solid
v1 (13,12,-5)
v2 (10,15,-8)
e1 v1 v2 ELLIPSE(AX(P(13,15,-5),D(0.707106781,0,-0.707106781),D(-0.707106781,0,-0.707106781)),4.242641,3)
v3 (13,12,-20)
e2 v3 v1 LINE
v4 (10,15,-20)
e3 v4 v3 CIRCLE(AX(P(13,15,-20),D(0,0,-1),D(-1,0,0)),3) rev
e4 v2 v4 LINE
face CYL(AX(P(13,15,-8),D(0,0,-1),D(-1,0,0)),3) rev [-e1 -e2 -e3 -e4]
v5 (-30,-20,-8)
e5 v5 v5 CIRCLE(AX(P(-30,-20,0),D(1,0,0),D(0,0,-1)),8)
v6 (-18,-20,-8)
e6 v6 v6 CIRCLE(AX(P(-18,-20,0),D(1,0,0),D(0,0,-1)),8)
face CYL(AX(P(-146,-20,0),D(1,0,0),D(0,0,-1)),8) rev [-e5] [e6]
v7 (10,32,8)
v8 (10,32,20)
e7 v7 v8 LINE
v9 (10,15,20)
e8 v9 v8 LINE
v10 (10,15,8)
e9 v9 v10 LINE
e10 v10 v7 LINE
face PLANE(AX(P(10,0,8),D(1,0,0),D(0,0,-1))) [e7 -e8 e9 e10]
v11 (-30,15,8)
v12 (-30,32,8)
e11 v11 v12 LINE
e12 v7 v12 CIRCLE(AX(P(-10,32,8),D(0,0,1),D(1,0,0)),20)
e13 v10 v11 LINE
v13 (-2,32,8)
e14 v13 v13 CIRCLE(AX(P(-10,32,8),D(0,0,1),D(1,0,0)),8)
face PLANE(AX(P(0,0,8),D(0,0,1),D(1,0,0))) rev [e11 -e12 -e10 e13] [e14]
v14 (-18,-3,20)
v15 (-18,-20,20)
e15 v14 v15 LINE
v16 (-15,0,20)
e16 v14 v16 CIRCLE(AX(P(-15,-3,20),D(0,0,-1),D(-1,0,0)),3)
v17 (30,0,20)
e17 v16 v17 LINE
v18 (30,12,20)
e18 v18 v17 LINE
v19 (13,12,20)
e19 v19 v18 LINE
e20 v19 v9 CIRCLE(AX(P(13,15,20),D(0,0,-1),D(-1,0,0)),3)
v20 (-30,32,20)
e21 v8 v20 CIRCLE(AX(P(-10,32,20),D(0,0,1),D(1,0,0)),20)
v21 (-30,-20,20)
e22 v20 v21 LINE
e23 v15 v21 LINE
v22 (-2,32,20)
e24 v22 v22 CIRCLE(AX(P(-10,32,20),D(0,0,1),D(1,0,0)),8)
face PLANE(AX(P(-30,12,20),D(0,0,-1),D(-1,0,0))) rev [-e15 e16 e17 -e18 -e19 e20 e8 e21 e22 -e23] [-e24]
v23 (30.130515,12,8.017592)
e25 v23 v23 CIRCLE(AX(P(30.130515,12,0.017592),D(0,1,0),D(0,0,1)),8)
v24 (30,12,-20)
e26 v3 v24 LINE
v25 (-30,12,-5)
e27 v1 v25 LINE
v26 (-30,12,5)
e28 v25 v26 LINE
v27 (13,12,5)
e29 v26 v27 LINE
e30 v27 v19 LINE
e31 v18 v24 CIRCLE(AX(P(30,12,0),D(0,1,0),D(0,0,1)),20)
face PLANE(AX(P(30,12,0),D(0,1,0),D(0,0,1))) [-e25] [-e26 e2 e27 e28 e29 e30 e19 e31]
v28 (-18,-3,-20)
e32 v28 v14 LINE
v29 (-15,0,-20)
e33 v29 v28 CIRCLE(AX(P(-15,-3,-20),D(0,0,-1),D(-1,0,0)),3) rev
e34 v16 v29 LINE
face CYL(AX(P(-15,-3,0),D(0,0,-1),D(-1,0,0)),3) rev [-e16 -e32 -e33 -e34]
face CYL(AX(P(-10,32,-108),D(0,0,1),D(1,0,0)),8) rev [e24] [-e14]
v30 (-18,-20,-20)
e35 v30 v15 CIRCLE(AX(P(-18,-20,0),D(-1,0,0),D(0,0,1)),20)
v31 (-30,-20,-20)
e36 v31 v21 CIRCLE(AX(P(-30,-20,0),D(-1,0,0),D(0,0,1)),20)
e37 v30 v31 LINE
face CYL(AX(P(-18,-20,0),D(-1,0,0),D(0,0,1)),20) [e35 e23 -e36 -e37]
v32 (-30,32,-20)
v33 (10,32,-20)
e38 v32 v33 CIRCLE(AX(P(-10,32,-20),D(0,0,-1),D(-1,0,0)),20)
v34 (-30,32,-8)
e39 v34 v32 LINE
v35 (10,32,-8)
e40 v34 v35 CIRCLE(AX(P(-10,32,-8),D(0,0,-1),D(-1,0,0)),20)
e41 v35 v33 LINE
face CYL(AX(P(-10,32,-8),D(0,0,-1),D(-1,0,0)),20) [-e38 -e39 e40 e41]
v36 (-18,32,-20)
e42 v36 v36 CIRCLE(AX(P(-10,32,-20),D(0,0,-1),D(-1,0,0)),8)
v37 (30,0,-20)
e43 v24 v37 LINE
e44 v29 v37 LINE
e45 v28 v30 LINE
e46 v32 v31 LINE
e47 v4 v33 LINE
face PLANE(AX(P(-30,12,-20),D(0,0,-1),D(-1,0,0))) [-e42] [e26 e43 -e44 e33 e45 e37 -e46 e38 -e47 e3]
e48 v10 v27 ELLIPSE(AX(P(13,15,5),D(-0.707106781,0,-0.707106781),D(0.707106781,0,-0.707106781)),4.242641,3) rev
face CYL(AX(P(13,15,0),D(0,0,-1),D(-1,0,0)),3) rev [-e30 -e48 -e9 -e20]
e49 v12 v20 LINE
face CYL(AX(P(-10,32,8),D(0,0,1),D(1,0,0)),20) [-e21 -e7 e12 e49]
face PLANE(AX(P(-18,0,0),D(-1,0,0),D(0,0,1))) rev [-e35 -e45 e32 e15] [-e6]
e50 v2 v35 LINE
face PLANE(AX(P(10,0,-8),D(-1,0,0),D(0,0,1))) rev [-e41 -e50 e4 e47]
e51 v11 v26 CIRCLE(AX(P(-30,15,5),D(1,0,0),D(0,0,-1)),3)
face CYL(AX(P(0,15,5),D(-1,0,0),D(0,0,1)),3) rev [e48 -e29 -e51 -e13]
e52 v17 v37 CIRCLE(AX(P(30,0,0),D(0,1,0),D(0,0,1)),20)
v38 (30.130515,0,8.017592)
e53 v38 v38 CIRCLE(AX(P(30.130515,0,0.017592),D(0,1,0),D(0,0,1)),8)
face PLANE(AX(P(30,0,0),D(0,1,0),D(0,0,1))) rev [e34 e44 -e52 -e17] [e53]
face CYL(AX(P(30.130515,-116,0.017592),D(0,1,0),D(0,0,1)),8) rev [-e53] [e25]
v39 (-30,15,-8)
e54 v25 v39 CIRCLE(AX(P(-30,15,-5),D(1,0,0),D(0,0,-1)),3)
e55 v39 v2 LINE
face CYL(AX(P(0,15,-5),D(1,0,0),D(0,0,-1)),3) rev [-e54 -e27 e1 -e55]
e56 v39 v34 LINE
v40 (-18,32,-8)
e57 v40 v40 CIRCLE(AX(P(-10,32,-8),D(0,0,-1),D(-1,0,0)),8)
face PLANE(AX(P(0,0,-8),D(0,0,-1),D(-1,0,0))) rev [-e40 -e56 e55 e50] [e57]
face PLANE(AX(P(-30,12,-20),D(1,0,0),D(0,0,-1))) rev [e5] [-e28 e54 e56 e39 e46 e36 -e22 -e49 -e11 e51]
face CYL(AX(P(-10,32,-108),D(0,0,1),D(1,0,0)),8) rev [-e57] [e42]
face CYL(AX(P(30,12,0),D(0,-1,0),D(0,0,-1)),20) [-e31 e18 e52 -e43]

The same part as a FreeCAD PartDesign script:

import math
import FreeCAD as App
import Part
import Sketcher

V = App.Vector
Q = App.Units.Quantity


def edges_at(feature, points):
    """Names of the edges that pass closest to the given points."""
    edges = feature.Shape.Edges
    near = lambda p: min(range(len(edges)), key=lambda i: edges[i].distToShape(Part.Vertex(*p))[0])
    return sorted({f"Edge{near(p) + 1}" for p in points})

doc = App.newDocument("Part")
body = doc.addObject("PartDesign::Body", "Body")

# Sketch on XZ plane
sketch1 = body.newObject("Sketcher::SketchObject", "Sketch")
sketch1.AttachmentSupport = (doc.getObject("XZ_Plane"), [""])
sketch1.MapMode = "FlatFace"
sketch1.addGeometry([
    Part.LineSegment(V(30, -20, 0), V(-30, -20, 0)),
    Part.LineSegment(V(-30, -20, 0), V(-30, 20, 0)),
    Part.LineSegment(V(-30, 20, 0), V(30, 20, 0)),
    Part.ArcOfCircle(Part.Circle(V(30, 0, 0), V(0, 0, 1), 20), math.radians(-90), math.radians(90)),
], False)
sketch1.addConstraint([
    Sketcher.Constraint("Coincident", 0, 2, 1, 1),
    Sketcher.Constraint("Coincident", 1, 2, 2, 1),
    Sketcher.Constraint("Tangent", 2, 2, 3, 2),
    Sketcher.Constraint("Tangent", 3, 1, 0, 1),
    Sketcher.Constraint("Horizontal", 0),
    Sketcher.Constraint("Vertical", 1),
    Sketcher.Constraint("Horizontal", 2),
    Sketcher.Constraint("Symmetric", 0, 2, 2, 2, -1, 1),
    Sketcher.Constraint("Radius", 3, Q("20 mm")),
    Sketcher.Constraint("DistanceX", 0, 2, 0, 1, Q("60 mm")),
])
pad1 = body.newObject("PartDesign::Pad", "Pad")
pad1.Profile = sketch1
pad1.Length = 12
pad1.Reversed = True

# Sketch on XY plane
sketch2 = body.newObject("Sketcher::SketchObject", "Sketch001")
sketch2.AttachmentSupport = (doc.getObject("XY_Plane"), [""])
sketch2.MapMode = "FlatFace"
sketch2.AttachmentOffset = App.Placement(V(0, 0, 20), App.Rotation())
sketch2.addGeometry([
    Part.ArcOfCircle(Part.Circle(V(-10, 32, 0), V(0, 0, 1), 20), math.radians(0), math.radians(180)),
    Part.LineSegment(V(-30, 32, 0), V(-30, 12, 0)),
    Part.LineSegment(V(-30, 12, 0), V(10, 12, 0)),
    Part.LineSegment(V(10, 12, 0), V(10, 32, 0)),
], False)
sketch2.addConstraint([
    Sketcher.Constraint("Tangent", 0, 2, 1, 1),
    Sketcher.Constraint("Coincident", 1, 2, 2, 1),
    Sketcher.Constraint("Coincident", 2, 2, 3, 1),
    Sketcher.Constraint("Tangent", 3, 2, 0, 1),
    Sketcher.Constraint("Vertical", 1),
    Sketcher.Constraint("Horizontal", 2),
    Sketcher.Constraint("Vertical", 3),
    Sketcher.Constraint("Radius", 0, Q("20 mm")),
    Sketcher.Constraint("DistanceY", 1, 2, 1, 1, Q("20 mm")),
    Sketcher.Constraint("DistanceX", 0, 3, -1, 1, Q("10 mm")),
    Sketcher.Constraint("DistanceY", -1, 1, 0, 3, Q("32 mm")),
])
pad2 = body.newObject("PartDesign::Pad", "Pad001")
pad2.Profile = sketch2
pad2.Length = 12
pad2.Reversed = True

# Sketch on XY plane
sketch3 = body.newObject("Sketcher::SketchObject", "Sketch002")
sketch3.AttachmentSupport = (doc.getObject("XY_Plane"), [""])
sketch3.MapMode = "FlatFace"
sketch3.AttachmentOffset = App.Placement(V(0, 0, -20), App.Rotation())
sketch3.addGeometry([
    Part.LineSegment(V(10, 12, 0), V(-30, 12, 0)),
    Part.LineSegment(V(-30, 12, 0), V(-30, 32, 0)),
    Part.ArcOfCircle(Part.Circle(V(-10, 32, 0), V(0, 0, 1), 20), math.radians(0), math.radians(180)),
    Part.LineSegment(V(10, 32, 0), V(10, 12, 0)),
], False)
sketch3.addConstraint([
    Sketcher.Constraint("Coincident", 0, 2, 1, 1),
    Sketcher.Constraint("Tangent", 1, 2, 2, 2),
    Sketcher.Constraint("Tangent", 2, 1, 3, 1),
    Sketcher.Constraint("Coincident", 3, 2, 0, 1),
    Sketcher.Constraint("Horizontal", 0),
    Sketcher.Constraint("Vertical", 1),
    Sketcher.Constraint("Vertical", 3),
    Sketcher.Constraint("Radius", 2, Q("20 mm")),
    Sketcher.Constraint("DistanceY", 1, 1, 1, 2, Q("20 mm")),
    Sketcher.Constraint("DistanceX", 2, 3, -1, 1, Q("10 mm")),
    Sketcher.Constraint("DistanceY", -1, 1, 2, 3, Q("32 mm")),
])
pad3 = body.newObject("PartDesign::Pad", "Pad002")
pad3.Profile = sketch3
pad3.Length = 12

# Sketch on YZ plane
sketch4 = body.newObject("Sketcher::SketchObject", "Sketch003")
sketch4.AttachmentSupport = (doc.getObject("YZ_Plane"), [""])
sketch4.MapMode = "FlatFace"
sketch4.AttachmentOffset = App.Placement(V(0, 0, -30), App.Rotation())
sketch4.addGeometry([
    Part.LineSegment(V(0, -20, 0), V(-20, -20, 0)),
    Part.ArcOfCircle(Part.Circle(V(-20, 0, 0), V(0, 0, 1), 20), math.radians(90), math.radians(270)),
    Part.LineSegment(V(-20, 20, 0), V(0, 20, 0)),
    Part.LineSegment(V(0, 20, 0), V(0, -20, 0)),
], False)
sketch4.addConstraint([
    Sketcher.Constraint("Tangent", 0, 2, 1, 2),
    Sketcher.Constraint("Tangent", 1, 1, 2, 1),
    Sketcher.Constraint("Coincident", 2, 2, 3, 1),
    Sketcher.Constraint("Coincident", 3, 2, 0, 1),
    Sketcher.Constraint("Horizontal", 0),
    Sketcher.Constraint("Horizontal", 2),
    Sketcher.Constraint("Vertical", 3),
    Sketcher.Constraint("Symmetric", 2, 2, 3, 2, -1, 1),
    Sketcher.Constraint("Radius", 1, Q("20 mm")),
    Sketcher.Constraint("DistanceX", 0, 2, 0, 1, Q("20 mm")),
])
pad4 = body.newObject("PartDesign::Pad", "Pad003")
pad4.Profile = sketch4
pad4.Length = 12

# Sketch on XY plane
sketch5 = body.newObject("Sketcher::SketchObject", "Sketch004")
sketch5.AttachmentSupport = (doc.getObject("XY_Plane"), [""])
sketch5.MapMode = "FlatFace"
sketch5.AttachmentOffset = App.Placement(V(0, 0, 20), App.Rotation())
sketch5.addGeometry(Part.Circle(V(-10, 32, 0), V(0, 0, 1), 8), False)
sketch5.addConstraint([
    Sketcher.Constraint("Diameter", 0, Q("16 mm")),
    Sketcher.Constraint("DistanceX", 0, 3, -1, 1, Q("10 mm")),
    Sketcher.Constraint("DistanceY", -1, 1, 0, 3, Q("32 mm")),
])
pocket1 = body.newObject("PartDesign::Pocket", "Pocket")
pocket1.Profile = sketch5
pocket1.Length = 128

# Sketch on XZ plane
sketch6 = body.newObject("Sketcher::SketchObject", "Sketch005")
sketch6.AttachmentSupport = (doc.getObject("XZ_Plane"), [""])
sketch6.MapMode = "FlatFace"
sketch6.AttachmentOffset = App.Placement(V(0, 0, -12), App.Rotation())
sketch6.addGeometry(Part.Circle(V(30, 0, 0), V(0, 0, 1), 8), False)
sketch6.addConstraint([
    Sketcher.Constraint("Diameter", 0, Q("16 mm")),
    Sketcher.Constraint("DistanceY", -1, 1, 0, 3, Q("0.017592 mm")),
    Sketcher.Constraint("DistanceX", -1, 1, 0, 3, Q("30.130515 mm")),
])
pocket2 = body.newObject("PartDesign::Pocket", "Pocket001")
pocket2.Profile = sketch6
pocket2.Length = 128
pocket2.Reversed = True

# Sketch on YZ plane
sketch7 = body.newObject("Sketcher::SketchObject", "Sketch006")
sketch7.AttachmentSupport = (doc.getObject("YZ_Plane"), [""])
sketch7.MapMode = "FlatFace"
sketch7.AttachmentOffset = App.Placement(V(0, 0, -18), App.Rotation())
sketch7.addGeometry(Part.Circle(V(-20, 0, 0), V(0, 0, 1), 8), False)
sketch7.addConstraint([
    Sketcher.Constraint("PointOnObject", 0, 3, -1),
    Sketcher.Constraint("Diameter", 0, Q("16 mm")),
    Sketcher.Constraint("DistanceX", 0, 3, -1, 1, Q("20 mm")),
])
pocket3 = body.newObject("PartDesign::Pocket", "Pocket002")
pocket3.Profile = sketch7
pocket3.Length = 128
doc.recompute()

fillet = body.newObject("PartDesign::Fillet", "Fillet")
fillet.Base = (pocket3, edges_at(pocket3, [
    (10, 12, 14),
    (-10, 12, 8),
    (10, 12, -14),
    (-10, 12, -8),
    (-18, 0, 0),
]))
fillet.Radius = 3

doc.recompute()
